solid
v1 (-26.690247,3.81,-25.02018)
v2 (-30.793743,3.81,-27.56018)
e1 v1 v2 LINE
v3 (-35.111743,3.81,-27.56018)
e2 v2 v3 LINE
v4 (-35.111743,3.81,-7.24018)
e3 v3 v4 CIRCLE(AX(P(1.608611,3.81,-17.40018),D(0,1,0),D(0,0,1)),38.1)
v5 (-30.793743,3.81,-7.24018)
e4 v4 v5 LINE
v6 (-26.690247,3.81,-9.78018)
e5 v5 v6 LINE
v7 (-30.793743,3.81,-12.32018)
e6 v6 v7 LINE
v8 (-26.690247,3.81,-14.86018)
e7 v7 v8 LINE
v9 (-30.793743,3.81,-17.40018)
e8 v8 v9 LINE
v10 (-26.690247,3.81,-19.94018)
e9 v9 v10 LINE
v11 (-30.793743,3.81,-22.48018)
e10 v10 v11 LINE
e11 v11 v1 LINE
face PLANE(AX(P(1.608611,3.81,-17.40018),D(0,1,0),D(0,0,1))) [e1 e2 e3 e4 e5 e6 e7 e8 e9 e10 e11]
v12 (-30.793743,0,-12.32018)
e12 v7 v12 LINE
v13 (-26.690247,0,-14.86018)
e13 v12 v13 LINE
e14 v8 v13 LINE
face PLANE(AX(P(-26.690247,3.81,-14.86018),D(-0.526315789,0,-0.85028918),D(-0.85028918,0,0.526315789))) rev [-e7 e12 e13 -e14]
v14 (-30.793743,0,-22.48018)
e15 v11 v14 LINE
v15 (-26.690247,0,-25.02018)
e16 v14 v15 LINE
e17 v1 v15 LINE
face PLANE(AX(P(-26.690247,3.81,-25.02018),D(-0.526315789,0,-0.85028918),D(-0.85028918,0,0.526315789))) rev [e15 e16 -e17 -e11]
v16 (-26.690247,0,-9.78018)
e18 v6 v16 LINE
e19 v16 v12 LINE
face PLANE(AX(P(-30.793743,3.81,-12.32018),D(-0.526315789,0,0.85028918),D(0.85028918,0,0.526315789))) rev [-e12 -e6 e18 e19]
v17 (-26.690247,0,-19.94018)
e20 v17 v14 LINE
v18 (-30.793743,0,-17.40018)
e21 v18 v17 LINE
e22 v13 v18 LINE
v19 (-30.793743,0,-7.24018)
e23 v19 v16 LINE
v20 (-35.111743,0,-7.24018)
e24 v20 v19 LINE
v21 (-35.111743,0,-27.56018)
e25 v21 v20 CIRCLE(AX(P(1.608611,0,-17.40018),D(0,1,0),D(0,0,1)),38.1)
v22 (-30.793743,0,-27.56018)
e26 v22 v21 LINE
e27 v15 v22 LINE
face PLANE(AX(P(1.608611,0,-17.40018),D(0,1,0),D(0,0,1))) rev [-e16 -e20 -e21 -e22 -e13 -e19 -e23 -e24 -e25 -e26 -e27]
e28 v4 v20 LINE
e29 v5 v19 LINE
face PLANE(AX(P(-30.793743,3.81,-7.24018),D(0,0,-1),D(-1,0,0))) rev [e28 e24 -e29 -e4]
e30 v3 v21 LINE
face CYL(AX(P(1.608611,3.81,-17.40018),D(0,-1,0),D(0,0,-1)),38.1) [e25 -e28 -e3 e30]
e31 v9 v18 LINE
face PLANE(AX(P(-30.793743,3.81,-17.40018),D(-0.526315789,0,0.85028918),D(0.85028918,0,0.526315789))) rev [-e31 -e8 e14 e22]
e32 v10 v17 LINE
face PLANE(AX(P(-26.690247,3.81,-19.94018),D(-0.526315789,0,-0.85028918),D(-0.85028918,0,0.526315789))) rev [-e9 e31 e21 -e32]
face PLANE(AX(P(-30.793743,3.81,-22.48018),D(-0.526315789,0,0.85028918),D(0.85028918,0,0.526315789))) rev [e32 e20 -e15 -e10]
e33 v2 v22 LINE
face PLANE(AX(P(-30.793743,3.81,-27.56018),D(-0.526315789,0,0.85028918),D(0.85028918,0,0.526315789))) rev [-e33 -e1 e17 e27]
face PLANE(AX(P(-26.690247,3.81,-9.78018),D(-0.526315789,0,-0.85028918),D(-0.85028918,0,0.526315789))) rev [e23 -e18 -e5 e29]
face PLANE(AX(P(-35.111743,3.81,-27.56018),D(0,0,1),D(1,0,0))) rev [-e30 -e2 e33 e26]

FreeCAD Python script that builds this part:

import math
import FreeCAD as App
import Part
import Sketcher
Q = App.Units.Quantity

doc = App.newDocument("Part")
body = doc.addObject("PartDesign::Body", "Body")

# Sketch on XZ plane
sketch1 = body.newObject("Sketcher::SketchObject", "Sketch")
sketch1.AttachmentSupport = (doc.getObject("XZ_Plane"), [""])
sketch1.MapMode = "FlatFace"
sketch1.addGeometry(Part.LineSegment(App.Vector(-26.7, -25, 0), App.Vector(-30.8, -27.6, 0)), False)
sketch1.addGeometry(Part.LineSegment(App.Vector(-30.8, -27.6, 0), App.Vector(-35.1, -27.6, 0)), False)
sketch1.addGeometry(Part.ArcOfCircle(Part.Circle(App.Vector(1.6, -17.4, 0), App.Vector(0, 0, 1), 38.1), math.radians(165), math.radians(195)), False)
sketch1.addGeometry(Part.LineSegment(App.Vector(-35.1, -7.2, 0), App.Vector(-30.8, -7.2, 0)), False)
sketch1.addGeometry(Part.LineSegment(App.Vector(-30.8, -7.2, 0), App.Vector(-26.7, -9.8, 0)), False)
sketch1.addGeometry(Part.LineSegment(App.Vector(-26.7, -9.8, 0), App.Vector(-30.8, -12.3, 0)), False)
sketch1.addGeometry(Part.LineSegment(App.Vector(-30.8, -12.3, 0), App.Vector(-26.7, -14.9, 0)), False)
sketch1.addGeometry(Part.LineSegment(App.Vector(-26.7, -14.9, 0), App.Vector(-30.8, -17.4, 0)), False)
sketch1.addGeometry(Part.LineSegment(App.Vector(-30.8, -17.4, 0), App.Vector(-26.7, -19.9, 0)), False)
sketch1.addGeometry(Part.LineSegment(App.Vector(-26.7, -19.9, 0), App.Vector(-30.8, -22.5, 0)), False)
sketch1.addGeometry(Part.LineSegment(App.Vector(-30.8, -22.5, 0), App.Vector(-26.7, -25, 0)), False)
sketch1.addConstraint(Sketcher.Constraint("Coincident", 0, 2, 1, 1))
sketch1.addConstraint(Sketcher.Constraint("Coincident", 1, 2, 2, 2))
sketch1.addConstraint(Sketcher.Constraint("Coincident", 2, 1, 3, 1))
sketch1.addConstraint(Sketcher.Constraint("Coincident", 3, 2, 4, 1))
sketch1.addConstraint(Sketcher.Constraint("Coincident", 4, 2, 5, 1))
sketch1.addConstraint(Sketcher.Constraint("Coincident", 5, 2, 6, 1))
sketch1.addConstraint(Sketcher.Constraint("Coincident", 6, 2, 7, 1))
sketch1.addConstraint(Sketcher.Constraint("Coincident", 7, 2, 8, 1))
sketch1.addConstraint(Sketcher.Constraint("Coincident", 8, 2, 9, 1))
sketch1.addConstraint(Sketcher.Constraint("Coincident", 9, 2, 10, 1))
sketch1.addConstraint(Sketcher.Constraint("Coincident", 10, 2, 0, 1))
sketch1.addConstraint(Sketcher.Constraint("Horizontal", 1))
sketch1.addConstraint(Sketcher.Constraint("Horizontal", 3))
sketch1.addConstraint(Sketcher.Constraint("Parallel", 0, 5))
sketch1.addConstraint(Sketcher.Constraint("Parallel", 4, 6))
sketch1.addConstraint(Sketcher.Constraint("Parallel", 5, 7))
sketch1.addConstraint(Sketcher.Constraint("Parallel", 6, 8))
sketch1.addConstraint(Sketcher.Constraint("Parallel", 7, 9))
sketch1.addConstraint(Sketcher.Constraint("Parallel", 8, 10))
sketch1.addConstraint(Sketcher.Constraint("Horizontal", 2, 3, 7, 2))
sketch1.addConstraint(Sketcher.Constraint("Vertical", 1, 2, 2, 1))
sketch1.addConstraint(Sketcher.Constraint("Vertical", 0, 2, 3, 2))
sketch1.addConstraint(Sketcher.Constraint("Vertical", 3, 2, 5, 2))
sketch1.addConstraint(Sketcher.Constraint("Vertical", 4, 2, 6, 2))
sketch1.addConstraint(Sketcher.Constraint("Vertical", 5, 2, 7, 2))
sketch1.addConstraint(Sketcher.Constraint("Vertical", 6, 2, 8, 2))
sketch1.addConstraint(Sketcher.Constraint("Vertical", 7, 2, 9, 2))
sketch1.addConstraint(Sketcher.Constraint("Equal", 0, 4))
sketch1.addConstraint(Sketcher.Constraint("Radius", 2, Q("1.5 in")))
sketch1.addConstraint(Sketcher.Constraint("DistanceX", 1, 2, 1, 1, Q("0.17 in")))
sketch1.addConstraint(Sketcher.Constraint("DistanceY", 0, 2, 2, 3, Q("0.4 in")))
sketch1.addConstraint(Sketcher.Constraint("Distance", 0, Q("0.19 in")))
sketch1.addConstraint(Sketcher.Constraint("DistanceX", -1, 1, 2, 3, Q("1.608611 mm")))
sketch1.addConstraint(Sketcher.Constraint("DistanceY", 2, 3, -1, 1, Q("17.40018 mm")))
pad1 = body.newObject("PartDesign::Pad", "Pad")
pad1.Profile = sketch1
pad1.Length = Q("0.15 in")
pad1.Reversed = True

doc.recompute()
